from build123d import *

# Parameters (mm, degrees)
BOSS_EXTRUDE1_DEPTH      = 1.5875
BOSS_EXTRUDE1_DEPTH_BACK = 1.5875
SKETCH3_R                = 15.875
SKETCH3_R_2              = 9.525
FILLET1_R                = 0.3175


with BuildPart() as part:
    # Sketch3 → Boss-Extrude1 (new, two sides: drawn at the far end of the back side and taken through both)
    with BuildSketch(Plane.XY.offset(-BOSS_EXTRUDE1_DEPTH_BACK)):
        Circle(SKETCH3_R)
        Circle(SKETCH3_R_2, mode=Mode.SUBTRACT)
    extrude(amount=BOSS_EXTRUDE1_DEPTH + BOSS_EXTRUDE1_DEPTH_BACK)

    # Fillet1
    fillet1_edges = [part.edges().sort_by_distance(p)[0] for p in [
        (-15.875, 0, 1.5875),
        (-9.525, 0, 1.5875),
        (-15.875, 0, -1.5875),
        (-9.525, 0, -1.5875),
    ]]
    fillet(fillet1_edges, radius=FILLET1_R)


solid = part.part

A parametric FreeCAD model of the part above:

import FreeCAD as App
import Part
import Sketcher

V = App.Vector
Q = App.Units.Quantity


def edges_at(feature, points):
    """Names of the edges that pass closest to the given points."""
    edges = feature.Shape.Edges
    near = lambda p: min(range(len(edges)), key=lambda i: edges[i].distToShape(Part.Vertex(*p))[0])
    return sorted({f"Edge{near(p) + 1}" for p in points})

doc = App.newDocument("Part")
body = doc.addObject("PartDesign::Body", "Body")

# Sketch on XY plane
sketch1 = body.newObject("Sketcher::SketchObject", "Sketch")
sketch1.AttachmentSupport = (doc.getObject("XY_Plane"), [""])
sketch1.MapMode = "FlatFace"
sketch1.addGeometry(Part.Circle(V(0, 0, 0), V(0, 0, 1), 15.875), False)
sketch1.addGeometry(Part.Circle(V(0, 0, 0), V(0, 0, 1), 9.525), False)
sketch1.addConstraint(Sketcher.Constraint("Coincident", 0, 3, -1, 1))
sketch1.addConstraint(Sketcher.Constraint("Coincident", 1, 3, -1, 1))
sketch1.addConstraint(Sketcher.Constraint("Diameter", 0, Q("1.25 in")))
sketch1.addConstraint(Sketcher.Constraint("Diameter", 1, Q("0.75 in")))
pad1 = body.newObject("PartDesign::Pad", "Pad")
pad1.Profile = sketch1
pad1.Type = "TwoLengths"
pad1.Length = Q("0.0625 in")
pad1.Length2 = Q("0.0625 in")
doc.recompute()

fillet = body.newObject("PartDesign::Fillet", "Fillet")
fillet.Base = (pad1, edges_at(pad1, [
    (-15.875, 0, 1.587),
    (-9.525, 0, 1.587),
    (-15.875, 0, -1.587),
    (-9.525, 0, -1.587),
]))
fillet.Radius = Q("0.0125 in")

doc.recompute()
